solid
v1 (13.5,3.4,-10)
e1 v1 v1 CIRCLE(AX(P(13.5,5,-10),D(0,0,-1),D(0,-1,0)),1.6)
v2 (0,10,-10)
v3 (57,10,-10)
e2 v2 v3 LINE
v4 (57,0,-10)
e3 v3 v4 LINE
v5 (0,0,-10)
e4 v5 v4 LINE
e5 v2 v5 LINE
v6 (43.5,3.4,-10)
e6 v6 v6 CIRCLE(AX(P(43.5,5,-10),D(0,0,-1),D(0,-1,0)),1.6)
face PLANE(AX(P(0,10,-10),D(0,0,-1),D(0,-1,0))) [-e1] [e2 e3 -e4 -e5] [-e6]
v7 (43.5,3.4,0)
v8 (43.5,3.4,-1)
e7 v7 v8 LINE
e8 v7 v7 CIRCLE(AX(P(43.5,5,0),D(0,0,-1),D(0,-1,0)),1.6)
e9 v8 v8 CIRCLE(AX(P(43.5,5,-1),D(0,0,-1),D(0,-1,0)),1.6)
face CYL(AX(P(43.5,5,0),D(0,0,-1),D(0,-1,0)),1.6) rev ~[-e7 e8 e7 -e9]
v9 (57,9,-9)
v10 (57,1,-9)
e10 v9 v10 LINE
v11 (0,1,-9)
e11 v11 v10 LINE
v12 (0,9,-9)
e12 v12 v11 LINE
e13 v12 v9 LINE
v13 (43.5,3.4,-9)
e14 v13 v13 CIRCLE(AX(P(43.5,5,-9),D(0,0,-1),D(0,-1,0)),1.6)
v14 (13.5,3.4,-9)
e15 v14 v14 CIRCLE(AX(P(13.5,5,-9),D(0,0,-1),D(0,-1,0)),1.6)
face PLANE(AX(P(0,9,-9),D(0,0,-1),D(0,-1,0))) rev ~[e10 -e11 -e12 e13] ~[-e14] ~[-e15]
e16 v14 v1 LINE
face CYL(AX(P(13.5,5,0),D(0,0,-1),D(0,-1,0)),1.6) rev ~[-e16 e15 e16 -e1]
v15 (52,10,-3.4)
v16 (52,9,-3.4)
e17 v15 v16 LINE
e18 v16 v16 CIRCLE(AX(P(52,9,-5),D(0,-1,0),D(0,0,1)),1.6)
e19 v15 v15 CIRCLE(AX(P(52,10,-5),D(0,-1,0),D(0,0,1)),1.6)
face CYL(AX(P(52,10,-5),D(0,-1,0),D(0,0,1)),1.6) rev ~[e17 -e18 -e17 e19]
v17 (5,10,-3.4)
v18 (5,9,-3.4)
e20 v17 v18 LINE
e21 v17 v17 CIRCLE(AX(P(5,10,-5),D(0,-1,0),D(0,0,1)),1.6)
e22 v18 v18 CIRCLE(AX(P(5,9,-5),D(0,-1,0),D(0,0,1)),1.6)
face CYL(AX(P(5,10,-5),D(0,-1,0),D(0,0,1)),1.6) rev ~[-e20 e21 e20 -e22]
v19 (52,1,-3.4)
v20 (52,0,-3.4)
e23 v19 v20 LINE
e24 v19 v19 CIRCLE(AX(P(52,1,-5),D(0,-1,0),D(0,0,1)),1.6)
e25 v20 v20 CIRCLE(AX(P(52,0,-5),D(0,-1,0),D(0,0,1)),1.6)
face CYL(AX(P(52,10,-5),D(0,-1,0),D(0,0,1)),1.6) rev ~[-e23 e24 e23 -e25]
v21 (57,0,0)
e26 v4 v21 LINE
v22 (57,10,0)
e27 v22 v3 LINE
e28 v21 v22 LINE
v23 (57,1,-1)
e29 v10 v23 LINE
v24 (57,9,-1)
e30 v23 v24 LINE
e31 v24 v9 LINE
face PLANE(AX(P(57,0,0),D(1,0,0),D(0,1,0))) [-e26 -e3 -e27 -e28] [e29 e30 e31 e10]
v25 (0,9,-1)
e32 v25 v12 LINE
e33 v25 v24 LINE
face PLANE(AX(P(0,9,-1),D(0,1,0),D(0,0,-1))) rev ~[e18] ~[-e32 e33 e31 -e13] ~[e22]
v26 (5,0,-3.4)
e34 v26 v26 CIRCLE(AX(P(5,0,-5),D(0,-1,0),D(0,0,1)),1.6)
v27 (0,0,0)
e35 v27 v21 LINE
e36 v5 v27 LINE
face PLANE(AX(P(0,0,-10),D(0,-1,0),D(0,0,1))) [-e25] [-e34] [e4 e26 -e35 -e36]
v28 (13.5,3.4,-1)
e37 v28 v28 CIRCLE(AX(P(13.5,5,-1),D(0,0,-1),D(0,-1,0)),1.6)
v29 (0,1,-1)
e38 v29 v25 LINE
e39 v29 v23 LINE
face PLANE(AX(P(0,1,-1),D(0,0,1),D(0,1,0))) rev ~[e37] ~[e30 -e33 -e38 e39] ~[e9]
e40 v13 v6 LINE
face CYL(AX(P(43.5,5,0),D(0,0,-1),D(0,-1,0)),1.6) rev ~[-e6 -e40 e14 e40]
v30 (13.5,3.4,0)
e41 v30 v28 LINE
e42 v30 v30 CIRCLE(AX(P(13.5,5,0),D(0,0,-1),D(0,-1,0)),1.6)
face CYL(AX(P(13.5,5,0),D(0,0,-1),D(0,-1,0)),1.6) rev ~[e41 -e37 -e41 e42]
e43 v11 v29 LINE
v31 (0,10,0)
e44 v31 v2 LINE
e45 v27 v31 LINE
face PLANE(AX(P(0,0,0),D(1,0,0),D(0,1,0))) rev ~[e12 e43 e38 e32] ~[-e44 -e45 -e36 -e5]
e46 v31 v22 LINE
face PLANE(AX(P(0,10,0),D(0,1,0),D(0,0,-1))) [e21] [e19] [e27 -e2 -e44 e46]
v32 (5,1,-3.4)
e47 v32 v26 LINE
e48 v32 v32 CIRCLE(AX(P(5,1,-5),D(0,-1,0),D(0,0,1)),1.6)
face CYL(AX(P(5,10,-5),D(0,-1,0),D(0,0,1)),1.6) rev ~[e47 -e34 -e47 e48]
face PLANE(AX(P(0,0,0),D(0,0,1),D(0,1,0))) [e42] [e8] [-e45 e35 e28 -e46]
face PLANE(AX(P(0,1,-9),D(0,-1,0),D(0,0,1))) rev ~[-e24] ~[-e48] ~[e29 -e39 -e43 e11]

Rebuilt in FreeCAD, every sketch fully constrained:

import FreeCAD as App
import Part
import Sketcher

V = App.Vector
Q = App.Units.Quantity

doc = App.newDocument("Part")
body = doc.addObject("PartDesign::Body", "Body")

sketch1 = doc.addObject("Sketcher::SketchObject", "Sketch")
body.addObject(sketch1)
sketch1.AttachmentSupport = (doc.YZ_Plane, [""])
sketch1.MapMode = "FlatFace"
sketch1.addGeometry([
    Part.LineSegment(V(10, 0, 0), V(0, 0, 0)),
    Part.LineSegment(V(0, 0, 0), V(0, -10, 0)),
    Part.LineSegment(V(0, -10, 0), V(10, -10, 0)),
    Part.LineSegment(V(10, -10, 0), V(10, 0, 0)),
    Part.LineSegment(V(1, -9, 0), V(1, -1, 0)),
    Part.LineSegment(V(1, -1, 0), V(9, -1, 0)),
    Part.LineSegment(V(9, -1, 0), V(9, -9, 0)),
    Part.LineSegment(V(9, -9, 0), V(1, -9, 0)),
], False)
sketch1.addConstraint([
    Sketcher.Constraint("Coincident", 0, 2, 1, 1),
    Sketcher.Constraint("Coincident", 1, 2, 2, 1),
    Sketcher.Constraint("Coincident", 2, 2, 3, 1),
    Sketcher.Constraint("Coincident", 3, 2, 0, 1),
    Sketcher.Constraint("Coincident", 4, 2, 5, 1),
    Sketcher.Constraint("Coincident", 5, 2, 6, 1),
    Sketcher.Constraint("Coincident", 6, 2, 7, 1),
    Sketcher.Constraint("Coincident", 7, 2, 4, 1),
    Sketcher.Constraint("Horizontal", 0),
    Sketcher.Constraint("Vertical", 1),
    Sketcher.Constraint("Horizontal", 2),
    Sketcher.Constraint("Vertical", 3),
    Sketcher.Constraint("Vertical", 4),
    Sketcher.Constraint("Horizontal", 5),
    Sketcher.Constraint("Vertical", 6),
    Sketcher.Constraint("Horizontal", 7),
    Sketcher.Constraint("Coincident", 0, 2, -1, 1),
    Sketcher.Constraint("Equal", 2, 1),
    Sketcher.Constraint("Equal", 7, 4),
    Sketcher.Constraint("DistanceX", 0, 2, 0, 1, Q("10 mm")),
    Sketcher.Constraint("DistanceX", 5, 1, 5, 2, Q("8 mm")),
    Sketcher.Constraint("DistanceX", -1, 1, 4, 2, Q("1 mm")),
    Sketcher.Constraint("DistanceY", 4, 2, -1, 1, Q("1 mm")),
])
pad1 = doc.addObject("PartDesign::Pad", "Pad")
body.addObject(pad1)
pad1.Profile = sketch1
pad1.Length = 57

sketch2 = doc.addObject("Sketcher::SketchObject", "Sketch001")
body.addObject(sketch2)
sketch2.AttachmentSupport = (doc.XZ_Plane, [""])
sketch2.MapMode = "FlatFace"
sketch2.AttachmentOffset = App.Placement(V(0, 0, -10), App.Rotation())
sketch2.addGeometry([
    Part.Circle(V(5, -5, 0), V(0, 0, 1), 1.6),
    Part.Circle(V(52, -5, 0), V(0, 0, 1), 1.6),
], False)
sketch2.addConstraint([
    Sketcher.Constraint("Equal", 0, 1),
    Sketcher.Constraint("Horizontal", 0, 3, 1, 3),
    Sketcher.Constraint("Diameter", 0, Q("3.2 mm")),
    Sketcher.Constraint("DistanceX", -1, 1, 0, 3, Q("5 mm")),
    Sketcher.Constraint("DistanceY", 0, 3, -1, 1, Q("5 mm")),
    Sketcher.Constraint("DistanceX", -1, 1, 1, 3, Q("52 mm")),
])
doc.recompute()
hole = doc.addObject("PartDesign::Hole", "Hole")
body.addObject(hole)
hole.Profile = sketch2
hole.ThreadType = "None"
hole.Diameter = 3.2
hole.DepthType = "ThroughAll"
hole.Reversed = True

sketch3 = doc.addObject("Sketcher::SketchObject", "Sketch002")
body.addObject(sketch3)
sketch3.AttachmentSupport = (doc.XY_Plane, [""])
sketch3.MapMode = "FlatFace"
sketch3.addGeometry([
    Part.Circle(V(13.5, 5, 0), V(0, 0, 1), 1.6),
    Part.Circle(V(43.5, 5, 0), V(0, 0, 1), 1.6),
], False)
sketch3.addConstraint([
    Sketcher.Constraint("Equal", 0, 1),
    Sketcher.Constraint("Horizontal", 0, 3, 1, 3),
    Sketcher.Constraint("Diameter", 0, Q("3.2 mm")),
    Sketcher.Constraint("DistanceY", -1, 1, 0, 3, Q("5 mm")),
    Sketcher.Constraint("DistanceX", 0, 3, 1, 3, Q("30 mm")),
    Sketcher.Constraint("DistanceX", -1, 1, 0, 3, Q("13.5 mm")),
])
doc.recompute()
hole2 = doc.addObject("PartDesign::Hole", "Hole001")
body.addObject(hole2)
hole2.Profile = sketch3
hole2.ThreadType = "None"
hole2.Diameter = 3.2
hole2.DepthType = "ThroughAll"

doc.recompute()
